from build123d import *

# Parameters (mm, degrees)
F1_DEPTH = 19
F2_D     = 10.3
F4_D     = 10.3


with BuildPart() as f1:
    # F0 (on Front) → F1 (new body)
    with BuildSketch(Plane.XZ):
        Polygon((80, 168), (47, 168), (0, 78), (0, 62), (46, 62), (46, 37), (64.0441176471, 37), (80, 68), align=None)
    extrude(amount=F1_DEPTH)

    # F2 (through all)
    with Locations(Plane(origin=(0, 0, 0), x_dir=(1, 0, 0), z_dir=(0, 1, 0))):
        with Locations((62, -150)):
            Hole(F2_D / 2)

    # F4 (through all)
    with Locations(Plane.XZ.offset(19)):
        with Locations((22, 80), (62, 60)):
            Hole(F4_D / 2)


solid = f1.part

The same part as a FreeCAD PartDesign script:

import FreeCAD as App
import Part
import Sketcher

V = App.Vector


def add_polygon(sketch, points):
    """Adds a closed chain of lines whose ends are joined by coincident constraints."""
    first, n = sketch.GeometryCount, len(points)
    for a, b in zip(points, points[1:] + points[:1]):
        sketch.addGeometry(Part.LineSegment(App.Vector(*a, 0), App.Vector(*b, 0)), False)
    for i in range(n):
        sketch.addConstraint(Sketcher.Constraint("Coincident", first + i, 2, first + (i + 1) % n, 1))

doc = App.newDocument("Part")
body = doc.addObject("PartDesign::Body", "Body")

sketch1 = body.newObject("Sketcher::SketchObject", "Sketch")
sketch1.AttachmentSupport = (doc.getObject("XZ_Plane"), [""])
sketch1.MapMode = "FlatFace"
add_polygon(sketch1, [(80, 168), (47, 168), (0, 78), (0, 62), (46, 62), (46, 37), (64.044118, 37), (80, 68)])
sketch1.addConstraint(Sketcher.Constraint("Horizontal", 0))
sketch1.addConstraint(Sketcher.Constraint("Vertical", 2))
sketch1.addConstraint(Sketcher.Constraint("Horizontal", 3))
sketch1.addConstraint(Sketcher.Constraint("Vertical", 4))
sketch1.addConstraint(Sketcher.Constraint("Horizontal", 5))
sketch1.addConstraint(Sketcher.Constraint("Vertical", 7))
sketch1.addConstraint(Sketcher.Constraint("PointOnObject", 1, 2, -2))
sketch1.addConstraint(Sketcher.Constraint("DistanceX", 0, 2, 0, 1, 33.0))
sketch1.addConstraint(Sketcher.Constraint("DistanceX", 3, 1, 3, 2, 46.0))
sketch1.addConstraint(Sketcher.Constraint("DistanceY", 2, 2, 2, 1, 16.0))
sketch1.addConstraint(Sketcher.Constraint("DistanceY", 4, 2, 4, 1, 25.0))
sketch1.addConstraint(Sketcher.Constraint("DistanceY", 7, 1, 7, 2, 100.0))
sketch1.addConstraint(Sketcher.Constraint("DistanceX", -1, 1, 0, 2, 47.0))
sketch1.addConstraint(Sketcher.Constraint("DistanceY", -1, 1, 0, 2, 168.0))
sketch1.addConstraint(Sketcher.Constraint("DistanceY", -1, 1, 1, 2, 78.0))
sketch1.addConstraint(Sketcher.Constraint("DistanceX", 5, 1, 5, 2, 18.044118))
pad1 = body.newObject("PartDesign::Pad", "Pad")
pad1.Profile = sketch1
pad1.Length = 19

sketch2 = body.newObject("Sketcher::SketchObject", "Sketch001")
sketch2.AttachmentSupport = (doc.getObject("XZ_Plane"), [""])
sketch2.MapMode = "FlatFace"
sketch2.addGeometry(Part.Circle(V(62, 150, 0), V(0, 0, 1), 5.15), False)
sketch2.addConstraint(Sketcher.Constraint("Diameter", 0, 10.3))
sketch2.addConstraint(Sketcher.Constraint("DistanceX", -1, 1, 0, 3, 62.0))
sketch2.addConstraint(Sketcher.Constraint("DistanceY", -1, 1, 0, 3, 150.0))
doc.recompute()
hole = body.newObject("PartDesign::Hole", "Hole")
hole.Profile = sketch2
hole.ThreadType = "None"
hole.Diameter = 10.3
hole.DepthType = "ThroughAll"
hole.Reversed = True

sketch3 = body.newObject("Sketcher::SketchObject", "Sketch002")
sketch3.AttachmentSupport = (doc.getObject("XZ_Plane"), [""])
sketch3.MapMode = "FlatFace"
sketch3.AttachmentOffset = App.Placement(V(0, 0, 19), App.Rotation())
sketch3.addGeometry(Part.Circle(V(22, 80, 0), V(0, 0, 1), 5.15), False)
sketch3.addGeometry(Part.Circle(V(62, 60, 0), V(0, 0, 1), 5.15), False)
sketch3.addConstraint(Sketcher.Constraint("Equal", 0, 1))
sketch3.addConstraint(Sketcher.Constraint("Diameter", 0, 10.3))
sketch3.addConstraint(Sketcher.Constraint("DistanceX", -1, 1, 0, 3, 22.0))
sketch3.addConstraint(Sketcher.Constraint("DistanceY", -1, 1, 0, 3, 80.0))
sketch3.addConstraint(Sketcher.Constraint("DistanceX", -1, 1, 1, 3, 62.0))
sketch3.addConstraint(Sketcher.Constraint("DistanceY", -1, 1, 1, 3, 60.0))
doc.recompute()
hole2 = body.newObject("PartDesign::Hole", "Hole001")
hole2.Profile = sketch3
hole2.ThreadType = "None"
hole2.Diameter = 10.3
hole2.DepthType = "ThroughAll"

doc.recompute()
